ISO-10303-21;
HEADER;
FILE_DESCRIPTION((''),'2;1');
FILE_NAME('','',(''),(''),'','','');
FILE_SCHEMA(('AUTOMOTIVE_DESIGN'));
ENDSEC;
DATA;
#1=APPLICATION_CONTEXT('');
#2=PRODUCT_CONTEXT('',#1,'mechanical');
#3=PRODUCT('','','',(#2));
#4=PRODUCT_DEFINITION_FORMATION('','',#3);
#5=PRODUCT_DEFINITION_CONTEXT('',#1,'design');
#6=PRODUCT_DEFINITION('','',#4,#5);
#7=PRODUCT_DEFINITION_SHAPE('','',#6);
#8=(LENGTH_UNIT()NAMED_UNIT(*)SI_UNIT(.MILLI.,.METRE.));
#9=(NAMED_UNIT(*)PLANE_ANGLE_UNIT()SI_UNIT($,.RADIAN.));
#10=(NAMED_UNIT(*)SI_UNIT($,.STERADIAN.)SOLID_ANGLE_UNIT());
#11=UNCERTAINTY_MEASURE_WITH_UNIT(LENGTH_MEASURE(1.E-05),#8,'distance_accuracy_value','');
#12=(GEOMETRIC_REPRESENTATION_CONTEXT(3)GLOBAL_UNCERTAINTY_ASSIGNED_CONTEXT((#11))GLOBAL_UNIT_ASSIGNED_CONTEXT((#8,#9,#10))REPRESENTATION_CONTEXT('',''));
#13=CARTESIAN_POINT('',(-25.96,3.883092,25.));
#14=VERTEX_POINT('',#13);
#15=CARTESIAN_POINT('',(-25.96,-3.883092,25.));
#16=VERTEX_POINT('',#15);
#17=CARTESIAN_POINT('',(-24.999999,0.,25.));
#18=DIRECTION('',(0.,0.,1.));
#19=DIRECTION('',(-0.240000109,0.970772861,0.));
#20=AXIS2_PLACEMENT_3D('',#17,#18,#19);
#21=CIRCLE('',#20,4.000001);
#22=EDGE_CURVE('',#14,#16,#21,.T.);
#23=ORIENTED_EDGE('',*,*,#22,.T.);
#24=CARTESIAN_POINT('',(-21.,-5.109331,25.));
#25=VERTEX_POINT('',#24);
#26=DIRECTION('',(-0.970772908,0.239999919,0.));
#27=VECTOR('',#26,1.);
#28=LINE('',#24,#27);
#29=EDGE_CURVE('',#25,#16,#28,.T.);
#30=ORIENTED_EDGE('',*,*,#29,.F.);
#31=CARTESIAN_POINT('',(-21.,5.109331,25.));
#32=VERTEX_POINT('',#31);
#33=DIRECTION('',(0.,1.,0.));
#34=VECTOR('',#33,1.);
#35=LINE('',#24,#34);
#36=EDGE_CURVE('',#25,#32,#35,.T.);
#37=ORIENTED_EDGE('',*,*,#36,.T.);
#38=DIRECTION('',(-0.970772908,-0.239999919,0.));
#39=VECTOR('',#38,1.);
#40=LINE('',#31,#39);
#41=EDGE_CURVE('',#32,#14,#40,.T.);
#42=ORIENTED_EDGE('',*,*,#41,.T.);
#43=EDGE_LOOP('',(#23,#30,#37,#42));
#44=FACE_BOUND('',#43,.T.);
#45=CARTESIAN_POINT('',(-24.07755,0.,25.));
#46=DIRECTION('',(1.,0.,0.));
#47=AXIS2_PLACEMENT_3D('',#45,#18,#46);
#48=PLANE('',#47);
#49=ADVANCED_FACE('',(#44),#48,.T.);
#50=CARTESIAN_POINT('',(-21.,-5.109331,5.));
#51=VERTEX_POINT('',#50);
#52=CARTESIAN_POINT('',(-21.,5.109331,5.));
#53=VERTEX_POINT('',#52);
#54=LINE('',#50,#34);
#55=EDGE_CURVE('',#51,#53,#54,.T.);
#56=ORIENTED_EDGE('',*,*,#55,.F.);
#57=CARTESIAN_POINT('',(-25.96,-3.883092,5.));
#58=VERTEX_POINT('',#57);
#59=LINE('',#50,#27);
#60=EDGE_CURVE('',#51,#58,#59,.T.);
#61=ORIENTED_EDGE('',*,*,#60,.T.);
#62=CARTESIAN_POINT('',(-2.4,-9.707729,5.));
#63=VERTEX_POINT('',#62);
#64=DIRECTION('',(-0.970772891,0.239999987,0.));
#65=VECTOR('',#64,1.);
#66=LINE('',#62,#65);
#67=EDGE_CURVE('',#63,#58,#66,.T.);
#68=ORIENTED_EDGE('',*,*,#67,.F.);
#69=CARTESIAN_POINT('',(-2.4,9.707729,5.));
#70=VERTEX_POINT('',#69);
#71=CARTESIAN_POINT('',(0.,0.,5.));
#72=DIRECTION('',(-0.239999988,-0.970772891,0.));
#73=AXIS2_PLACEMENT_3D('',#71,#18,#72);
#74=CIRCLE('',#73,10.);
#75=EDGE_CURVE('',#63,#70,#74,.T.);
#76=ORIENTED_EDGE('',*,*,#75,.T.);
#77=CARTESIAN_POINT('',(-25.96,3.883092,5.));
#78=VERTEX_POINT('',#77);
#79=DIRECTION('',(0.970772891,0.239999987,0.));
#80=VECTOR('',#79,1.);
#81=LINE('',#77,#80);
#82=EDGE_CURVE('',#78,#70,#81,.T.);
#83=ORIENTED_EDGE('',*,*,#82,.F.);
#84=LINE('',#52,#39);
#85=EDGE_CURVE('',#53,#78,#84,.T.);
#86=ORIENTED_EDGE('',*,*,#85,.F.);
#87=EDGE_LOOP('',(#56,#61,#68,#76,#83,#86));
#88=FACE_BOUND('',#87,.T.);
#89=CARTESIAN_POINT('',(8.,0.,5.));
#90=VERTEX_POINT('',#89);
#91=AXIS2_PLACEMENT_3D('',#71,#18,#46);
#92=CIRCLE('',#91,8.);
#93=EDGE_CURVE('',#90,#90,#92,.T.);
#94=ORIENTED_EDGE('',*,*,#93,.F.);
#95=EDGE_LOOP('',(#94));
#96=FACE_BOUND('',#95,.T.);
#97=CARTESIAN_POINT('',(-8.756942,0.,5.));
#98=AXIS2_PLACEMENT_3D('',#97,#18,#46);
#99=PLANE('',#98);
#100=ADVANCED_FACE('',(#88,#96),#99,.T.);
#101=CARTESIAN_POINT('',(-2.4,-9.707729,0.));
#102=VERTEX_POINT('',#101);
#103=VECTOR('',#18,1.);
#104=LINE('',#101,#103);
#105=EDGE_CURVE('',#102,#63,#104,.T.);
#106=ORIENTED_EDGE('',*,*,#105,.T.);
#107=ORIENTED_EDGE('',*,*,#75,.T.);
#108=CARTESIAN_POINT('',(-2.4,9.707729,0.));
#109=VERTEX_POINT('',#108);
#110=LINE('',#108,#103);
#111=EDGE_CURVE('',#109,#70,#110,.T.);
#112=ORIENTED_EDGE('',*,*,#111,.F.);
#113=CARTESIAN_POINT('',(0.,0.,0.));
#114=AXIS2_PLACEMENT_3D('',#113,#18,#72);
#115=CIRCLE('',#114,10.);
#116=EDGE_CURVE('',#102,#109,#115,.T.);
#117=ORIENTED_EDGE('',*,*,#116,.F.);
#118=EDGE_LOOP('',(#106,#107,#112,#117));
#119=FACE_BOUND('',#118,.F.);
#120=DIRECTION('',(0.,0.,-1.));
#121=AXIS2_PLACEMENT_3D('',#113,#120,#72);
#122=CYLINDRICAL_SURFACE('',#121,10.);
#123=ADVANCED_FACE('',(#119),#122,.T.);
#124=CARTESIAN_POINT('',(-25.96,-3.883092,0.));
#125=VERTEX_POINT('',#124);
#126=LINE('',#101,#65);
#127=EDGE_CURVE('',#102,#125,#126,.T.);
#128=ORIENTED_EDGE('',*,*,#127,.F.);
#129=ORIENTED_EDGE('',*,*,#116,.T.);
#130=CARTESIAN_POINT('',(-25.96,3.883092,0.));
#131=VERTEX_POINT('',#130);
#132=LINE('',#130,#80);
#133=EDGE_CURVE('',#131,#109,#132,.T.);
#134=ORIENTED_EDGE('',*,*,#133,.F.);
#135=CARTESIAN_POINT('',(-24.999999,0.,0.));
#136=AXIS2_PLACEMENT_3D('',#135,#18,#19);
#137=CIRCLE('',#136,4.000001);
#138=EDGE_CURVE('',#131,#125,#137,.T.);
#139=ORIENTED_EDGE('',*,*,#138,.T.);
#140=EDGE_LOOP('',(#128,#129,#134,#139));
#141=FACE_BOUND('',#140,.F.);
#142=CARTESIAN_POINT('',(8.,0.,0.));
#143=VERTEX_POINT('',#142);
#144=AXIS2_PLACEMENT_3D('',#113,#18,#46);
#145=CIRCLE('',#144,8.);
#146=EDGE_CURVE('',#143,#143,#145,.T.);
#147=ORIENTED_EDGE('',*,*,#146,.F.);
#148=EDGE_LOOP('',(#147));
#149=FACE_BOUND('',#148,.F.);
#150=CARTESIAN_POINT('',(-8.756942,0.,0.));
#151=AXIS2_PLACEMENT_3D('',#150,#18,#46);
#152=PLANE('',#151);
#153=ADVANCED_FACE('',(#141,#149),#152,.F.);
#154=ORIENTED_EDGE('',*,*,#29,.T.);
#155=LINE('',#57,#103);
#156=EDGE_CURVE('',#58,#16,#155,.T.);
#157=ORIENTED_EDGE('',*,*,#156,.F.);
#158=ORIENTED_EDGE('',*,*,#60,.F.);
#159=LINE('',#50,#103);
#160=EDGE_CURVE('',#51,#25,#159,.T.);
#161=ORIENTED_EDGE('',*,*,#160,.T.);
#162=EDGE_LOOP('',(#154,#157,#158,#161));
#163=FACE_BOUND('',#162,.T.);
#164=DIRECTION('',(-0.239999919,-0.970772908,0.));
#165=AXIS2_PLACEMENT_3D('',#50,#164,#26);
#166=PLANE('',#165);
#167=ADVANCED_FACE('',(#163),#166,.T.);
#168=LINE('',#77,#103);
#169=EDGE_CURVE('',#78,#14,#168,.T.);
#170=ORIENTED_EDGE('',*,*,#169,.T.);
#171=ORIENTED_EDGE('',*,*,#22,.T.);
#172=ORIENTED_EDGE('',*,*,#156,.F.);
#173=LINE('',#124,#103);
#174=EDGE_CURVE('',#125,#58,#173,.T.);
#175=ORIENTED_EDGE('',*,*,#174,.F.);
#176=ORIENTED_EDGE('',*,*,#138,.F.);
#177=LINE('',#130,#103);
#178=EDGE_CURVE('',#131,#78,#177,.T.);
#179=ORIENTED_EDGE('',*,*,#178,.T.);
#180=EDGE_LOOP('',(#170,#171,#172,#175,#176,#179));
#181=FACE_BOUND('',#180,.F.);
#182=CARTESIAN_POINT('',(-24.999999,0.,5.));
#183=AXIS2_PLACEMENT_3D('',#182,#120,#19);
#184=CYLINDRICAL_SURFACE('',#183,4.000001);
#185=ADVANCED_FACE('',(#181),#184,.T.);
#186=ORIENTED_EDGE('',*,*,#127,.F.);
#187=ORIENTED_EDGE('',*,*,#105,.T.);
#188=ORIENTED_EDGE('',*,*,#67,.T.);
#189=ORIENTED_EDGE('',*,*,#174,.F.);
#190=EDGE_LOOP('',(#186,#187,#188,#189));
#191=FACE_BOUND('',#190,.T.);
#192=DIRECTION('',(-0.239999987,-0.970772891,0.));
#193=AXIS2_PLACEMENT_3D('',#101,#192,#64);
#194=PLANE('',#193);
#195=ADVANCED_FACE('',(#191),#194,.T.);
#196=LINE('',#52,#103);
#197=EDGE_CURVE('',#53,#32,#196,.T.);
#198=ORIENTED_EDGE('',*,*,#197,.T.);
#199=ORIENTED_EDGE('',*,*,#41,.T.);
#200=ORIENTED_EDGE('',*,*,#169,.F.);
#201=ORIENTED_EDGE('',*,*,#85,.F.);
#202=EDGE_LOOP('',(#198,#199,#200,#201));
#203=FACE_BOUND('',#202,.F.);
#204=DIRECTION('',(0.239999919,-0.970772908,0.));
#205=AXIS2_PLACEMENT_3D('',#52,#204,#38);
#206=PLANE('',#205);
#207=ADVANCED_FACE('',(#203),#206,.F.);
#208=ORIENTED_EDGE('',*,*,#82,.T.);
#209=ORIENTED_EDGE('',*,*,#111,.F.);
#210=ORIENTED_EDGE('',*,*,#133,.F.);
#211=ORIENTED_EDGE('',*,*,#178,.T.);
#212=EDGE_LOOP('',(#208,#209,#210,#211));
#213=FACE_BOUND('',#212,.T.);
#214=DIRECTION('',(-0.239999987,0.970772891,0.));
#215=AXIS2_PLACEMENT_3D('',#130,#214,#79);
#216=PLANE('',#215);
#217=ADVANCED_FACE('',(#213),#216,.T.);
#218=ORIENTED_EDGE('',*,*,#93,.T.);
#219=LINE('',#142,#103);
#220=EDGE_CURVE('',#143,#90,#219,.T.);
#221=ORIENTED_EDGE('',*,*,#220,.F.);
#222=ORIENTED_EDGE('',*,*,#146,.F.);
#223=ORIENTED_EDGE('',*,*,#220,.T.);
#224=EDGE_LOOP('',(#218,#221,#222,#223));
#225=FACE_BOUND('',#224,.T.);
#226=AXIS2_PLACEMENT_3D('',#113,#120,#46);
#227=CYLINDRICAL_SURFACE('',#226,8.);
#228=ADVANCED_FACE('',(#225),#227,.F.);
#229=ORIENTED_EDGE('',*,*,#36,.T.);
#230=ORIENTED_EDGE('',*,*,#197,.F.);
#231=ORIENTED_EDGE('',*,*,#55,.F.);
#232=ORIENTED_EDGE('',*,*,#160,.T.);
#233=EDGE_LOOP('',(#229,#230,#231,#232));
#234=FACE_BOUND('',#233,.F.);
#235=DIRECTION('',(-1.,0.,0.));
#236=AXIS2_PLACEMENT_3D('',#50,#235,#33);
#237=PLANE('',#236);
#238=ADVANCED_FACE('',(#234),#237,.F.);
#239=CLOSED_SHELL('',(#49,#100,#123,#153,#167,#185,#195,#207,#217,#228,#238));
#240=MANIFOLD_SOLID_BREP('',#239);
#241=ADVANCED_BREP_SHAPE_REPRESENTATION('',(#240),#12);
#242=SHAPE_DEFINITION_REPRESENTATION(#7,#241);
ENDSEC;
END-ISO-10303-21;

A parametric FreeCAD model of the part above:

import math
import FreeCAD as App
import Part
import Sketcher

doc = App.newDocument("Part")
params = doc.addObject("Spreadsheet::Sheet", "Params")
for row, (alias, value) in enumerate([
    ("sketch1_diameter", "16 mm"),
    ("sketch1_radius", "10 mm"),
    ("sketch1_radius2", "4.000001 mm"),
    ("pad1_length", "5 mm"),
    ("sketch2_radius", "4.000001 mm"),
    ("pad2_length", "20 mm"),
], start=1):
    params.set(f"A{row}", alias)
    params.set(f"B{row}", "=" + value)
    params.setAlias(f"B{row}", alias)

body = doc.addObject("PartDesign::Body", "Body")

# Sketch on XY plane
sketch1 = body.newObject("Sketcher::SketchObject", "Sketch")
sketch1.AttachmentSupport = (doc.getObject("XY_Plane"), [""])
sketch1.MapMode = "FlatFace"
sketch1.addGeometry(Part.ArcOfCircle(Part.Circle(App.Vector(0, 0, 0), App.Vector(0, 0, 1), 10), math.radians(-103.88654), math.radians(103.88654)), False)
sketch1.addGeometry(Part.LineSegment(App.Vector(-2.4, 9.707729, 0), App.Vector(-25.96, 3.883092, 0)), False)
sketch1.addGeometry(Part.ArcOfCircle(Part.Circle(App.Vector(-24.999999, 0, 0), App.Vector(0, 0, 1), 4.000001), math.radians(103.886547), math.radians(256.113453)), False)
sketch1.addGeometry(Part.LineSegment(App.Vector(-25.96, -3.883092, 0), App.Vector(-2.4, -9.707729, 0)), False)
sketch1.addGeometry(Part.Circle(App.Vector(0, 0, 0), App.Vector(0, 0, 1), 8), False)
sketch1.addConstraint(Sketcher.Constraint("Tangent", 0, 2, 1, 1))
sketch1.addConstraint(Sketcher.Constraint("Tangent", 1, 2, 2, 1))
sketch1.addConstraint(Sketcher.Constraint("Tangent", 2, 2, 3, 1))
sketch1.addConstraint(Sketcher.Constraint("Tangent", 3, 2, 0, 1))
sketch1.addConstraint(Sketcher.Constraint("Coincident", 0, 3, -1, 1))
sketch1.addConstraint(Sketcher.Constraint("Coincident", 4, 3, -1, 1))
sketch1.addConstraint(Sketcher.Constraint("PointOnObject", 2, 3, -1))
sketch1.addConstraint(Sketcher.Constraint("Diameter", 4, 16.0))
sketch1.addConstraint(Sketcher.Constraint("Radius", 0, 10.0))
sketch1.addConstraint(Sketcher.Constraint("Radius", 2, 4.000001))
sketch1.addConstraint(Sketcher.Constraint("DistanceX", 2, 3, -1, 1, 24.999999))
sketch1.setExpression("Constraints[7]", "Params.sketch1_diameter")
sketch1.setExpression("Constraints[8]", "Params.sketch1_radius")
sketch1.setExpression("Constraints[9]", "Params.sketch1_radius2")
pad1 = body.newObject("PartDesign::Pad", "Pad")
pad1.Profile = sketch1
pad1.setExpression("Length", "Params.pad1_length")

# Sketch on XY plane
sketch2 = body.newObject("Sketcher::SketchObject", "Sketch001")
sketch2.AttachmentSupport = (doc.getObject("XY_Plane"), [""])
sketch2.MapMode = "FlatFace"
sketch2.AttachmentOffset = App.Placement(App.Vector(0, 0, 5), App.Rotation())
sketch2.addGeometry(Part.ArcOfCircle(Part.Circle(App.Vector(-24.999999, 0, 0), App.Vector(0, 0, 1), 4.000001), math.radians(103.886547), math.radians(256.113453)), False)
sketch2.addGeometry(Part.LineSegment(App.Vector(-25.96, -3.883092, 0), App.Vector(-21, -5.109331, 0)), False)
sketch2.addGeometry(Part.LineSegment(App.Vector(-21, -5.109331, 0), App.Vector(-21, 5.109331, 0)), False)
sketch2.addGeometry(Part.LineSegment(App.Vector(-21, 5.109331, 0), App.Vector(-25.96, 3.883092, 0)), False)
sketch2.addConstraint(Sketcher.Constraint("Tangent", 0, 2, 1, 1))
sketch2.addConstraint(Sketcher.Constraint("Coincident", 1, 2, 2, 1))
sketch2.addConstraint(Sketcher.Constraint("Coincident", 2, 2, 3, 1))
sketch2.addConstraint(Sketcher.Constraint("Tangent", 3, 2, 0, 1))
sketch2.addConstraint(Sketcher.Constraint("Vertical", 2))
sketch2.addConstraint(Sketcher.Constraint("Symmetric", 0, 2, 3, 2, -1))
sketch2.addConstraint(Sketcher.Constraint("Radius", 0, 4.000001))
sketch2.addConstraint(Sketcher.Constraint("DistanceX", 0, 3, -1, 1, 24.999999))
sketch2.addConstraint(Sketcher.Constraint("DistanceX", 1, 2, -1, 1, 21.0))
sketch2.addConstraint(Sketcher.Constraint("DistanceX", 0, 2, -1, 1, 25.96))
sketch2.setExpression("Constraints[6]", "Params.sketch2_radius")
pad2 = body.newObject("PartDesign::Pad", "Pad001")
pad2.Profile = sketch2
pad2.setExpression("Length", "Params.pad2_length")

doc.recompute()
